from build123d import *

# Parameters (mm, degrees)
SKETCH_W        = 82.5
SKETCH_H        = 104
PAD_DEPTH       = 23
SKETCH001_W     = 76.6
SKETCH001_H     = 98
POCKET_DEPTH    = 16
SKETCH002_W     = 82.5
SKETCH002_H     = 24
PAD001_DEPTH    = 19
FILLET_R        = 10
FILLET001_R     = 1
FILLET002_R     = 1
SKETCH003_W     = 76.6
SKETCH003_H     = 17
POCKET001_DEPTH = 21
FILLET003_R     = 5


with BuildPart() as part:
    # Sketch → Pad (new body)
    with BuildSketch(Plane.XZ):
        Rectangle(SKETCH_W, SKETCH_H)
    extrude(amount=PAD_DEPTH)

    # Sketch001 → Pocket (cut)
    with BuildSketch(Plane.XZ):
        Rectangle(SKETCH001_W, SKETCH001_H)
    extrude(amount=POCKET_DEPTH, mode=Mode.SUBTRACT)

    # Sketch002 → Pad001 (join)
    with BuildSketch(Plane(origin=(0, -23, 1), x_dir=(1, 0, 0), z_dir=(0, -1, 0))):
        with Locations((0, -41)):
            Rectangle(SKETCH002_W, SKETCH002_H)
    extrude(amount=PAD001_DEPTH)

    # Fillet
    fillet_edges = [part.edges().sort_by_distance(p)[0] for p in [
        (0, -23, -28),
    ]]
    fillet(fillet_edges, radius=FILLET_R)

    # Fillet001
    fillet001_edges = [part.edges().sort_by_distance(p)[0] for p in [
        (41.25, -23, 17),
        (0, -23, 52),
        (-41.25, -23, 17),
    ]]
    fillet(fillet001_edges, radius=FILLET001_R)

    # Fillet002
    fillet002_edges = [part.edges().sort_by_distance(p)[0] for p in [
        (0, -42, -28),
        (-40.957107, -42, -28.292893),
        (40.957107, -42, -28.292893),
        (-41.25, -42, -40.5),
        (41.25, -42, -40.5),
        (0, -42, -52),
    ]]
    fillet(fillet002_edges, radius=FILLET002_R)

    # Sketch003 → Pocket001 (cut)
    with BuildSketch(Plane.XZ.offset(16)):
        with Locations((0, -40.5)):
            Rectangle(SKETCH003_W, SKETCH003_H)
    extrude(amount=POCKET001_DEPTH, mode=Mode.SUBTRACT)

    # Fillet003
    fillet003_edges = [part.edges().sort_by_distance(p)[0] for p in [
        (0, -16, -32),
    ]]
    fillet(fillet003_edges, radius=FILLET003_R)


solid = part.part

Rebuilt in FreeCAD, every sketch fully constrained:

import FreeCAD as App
import Part
import Sketcher
from FreeCAD import Vector


def edges_at(feature, points):
    """Names of the edges that pass closest to the given points."""
    edges = feature.Shape.Edges
    near = lambda p: min(range(len(edges)), key=lambda i: edges[i].distToShape(Part.Vertex(*p))[0])
    return sorted({f"Edge{near(p) + 1}" for p in points})


def add_polygon(sketch, points):
    """Adds a closed chain of lines whose ends are joined by coincident constraints."""
    first, n = sketch.GeometryCount, len(points)
    for a, b in zip(points, points[1:] + points[:1]):
        sketch.addGeometry(Part.LineSegment(App.Vector(*a, 0), App.Vector(*b, 0)), False)
    for i in range(n):
        sketch.addConstraint(Sketcher.Constraint("Coincident", first + i, 2, first + (i + 1) % n, 1))

doc = App.newDocument("Part")
body = doc.addObject("PartDesign::Body", "Body")

# Sketch on XZ plane
sketch1 = body.newObject("Sketcher::SketchObject", "Sketch")
sketch1.AttachmentSupport = (doc.getObject("XZ_Plane"), [""])
sketch1.MapMode = "FlatFace"
add_polygon(sketch1, [(-41.25, 52), (-41.25, -52), (41.25, -52), (41.25, 52)])  # lines 0-3
sketch1.addConstraint(Sketcher.Constraint("Vertical", 0))
sketch1.addConstraint(Sketcher.Constraint("Horizontal", 1))
sketch1.addConstraint(Sketcher.Constraint("Vertical", 2))
sketch1.addConstraint(Sketcher.Constraint("Horizontal", 3))
sketch1.addConstraint(Sketcher.Constraint("Symmetric", 0, 2, 2, 2, -1, 1))
sketch1.addConstraint(Sketcher.Constraint("DistanceY", 0, 2, 0, 1, 104.0))
sketch1.addConstraint(Sketcher.Constraint("DistanceX", 1, 1, 1, 2, 82.5))
pad1 = body.newObject("PartDesign::Pad", "Pad")
pad1.Profile = sketch1
pad1.Length = 23

# Sketch on XZ plane
sketch2 = body.newObject("Sketcher::SketchObject", "Sketch001")
sketch2.AttachmentSupport = (doc.getObject("XZ_Plane"), [""])
sketch2.MapMode = "FlatFace"
add_polygon(sketch2, [(-38.3, 49), (-38.3, -49), (38.3, -49), (38.3, 49)])  # lines 0-3
sketch2.addConstraint(Sketcher.Constraint("Vertical", 0))
sketch2.addConstraint(Sketcher.Constraint("Horizontal", 1))
sketch2.addConstraint(Sketcher.Constraint("Vertical", 2))
sketch2.addConstraint(Sketcher.Constraint("Horizontal", 3))
sketch2.addConstraint(Sketcher.Constraint("Symmetric", 0, 2, 2, 2, -1, 1))
sketch2.addConstraint(Sketcher.Constraint("DistanceY", 0, 2, 0, 1, 98.0))
sketch2.addConstraint(Sketcher.Constraint("DistanceX", 1, 1, 1, 2, 76.6))
pocket1 = body.newObject("PartDesign::Pocket", "Pocket")
pocket1.Profile = sketch2
pocket1.Length = 16
pocket1.Reversed = True

# Sketch on XZ plane
sketch3 = body.newObject("Sketcher::SketchObject", "Sketch002")
sketch3.AttachmentSupport = (doc.getObject("XZ_Plane"), [""])
sketch3.MapMode = "FlatFace"
sketch3.AttachmentOffset = App.Placement(Vector(0, 0, 23), App.Rotation())
add_polygon(sketch3, [(-41.25, -28), (-41.25, -52), (41.25, -52), (41.25, -28)])  # lines 0-3
sketch3.addConstraint(Sketcher.Constraint("Vertical", 0))
sketch3.addConstraint(Sketcher.Constraint("Horizontal", 1))
sketch3.addConstraint(Sketcher.Constraint("Vertical", 2))
sketch3.addConstraint(Sketcher.Constraint("Horizontal", 3))
sketch3.addConstraint(Sketcher.Constraint("DistanceY", 0, 2, 0, 1, 24.0))
sketch3.addConstraint(Sketcher.Constraint("DistanceX", 1, 1, 1, 2, 82.5))
sketch3.addConstraint(Sketcher.Constraint("DistanceY", 0, 2, -1, 1, 52.0))
sketch3.addConstraint(Sketcher.Constraint("DistanceX", 0, 2, -1, 1, 41.25))
pad2 = body.newObject("PartDesign::Pad", "Pad001")
pad2.Profile = sketch3
pad2.Length = 19
doc.recompute()

fillet = body.newObject("PartDesign::Fillet", "Fillet")
fillet.Base = (pad2, edges_at(pad2, [(0, -23, -28)]))
fillet.Radius = 10
doc.recompute()

fillet2 = body.newObject("PartDesign::Fillet", "Fillet001")
fillet2.Base = (fillet, edges_at(fillet, [(41.25, -23, 17), (0, -23, 52), (-41.25, -23, 17)]))
fillet2.Radius = 1
doc.recompute()

fillet3 = body.newObject("PartDesign::Fillet", "Fillet002")
fillet3.Base = (fillet2, edges_at(fillet2, [
    (0, -42, -28),
    (-40.957, -42, -28.293),
    (40.957, -42, -28.293),
    (-41.25, -42, -40.5),
    (41.25, -42, -40.5),
    (0, -42, -52),
]))
fillet3.Radius = 1

# Sketch on XZ plane
sketch4 = body.newObject("Sketcher::SketchObject", "Sketch003")
sketch4.AttachmentSupport = (doc.getObject("XZ_Plane"), [""])
sketch4.MapMode = "FlatFace"
sketch4.AttachmentOffset = App.Placement(Vector(0, 0, 16), App.Rotation())
add_polygon(sketch4, [(-38.3, -32), (-38.3, -49), (38.3, -49), (38.3, -32)])  # lines 0-3
sketch4.addConstraint(Sketcher.Constraint("Vertical", 0))
sketch4.addConstraint(Sketcher.Constraint("Horizontal", 1))
sketch4.addConstraint(Sketcher.Constraint("Vertical", 2))
sketch4.addConstraint(Sketcher.Constraint("Horizontal", 3))
sketch4.addConstraint(Sketcher.Constraint("DistanceY", 0, 2, 0, 1, 17.0))
sketch4.addConstraint(Sketcher.Constraint("DistanceX", 1, 1, 1, 2, 76.6))
sketch4.addConstraint(Sketcher.Constraint("DistanceY", 0, 2, -1, 1, 49.0))
sketch4.addConstraint(Sketcher.Constraint("DistanceX", 0, 2, -1, 1, 38.3))
pocket2 = body.newObject("PartDesign::Pocket", "Pocket001")
pocket2.Profile = sketch4
pocket2.Length = 21
pocket2.Reversed = True
doc.recompute()

fillet4 = body.newObject("PartDesign::Fillet", "Fillet003")
fillet4.Base = (pocket2, edges_at(pocket2, [(0, -16, -32)]))
fillet4.Radius = 5

doc.recompute()
